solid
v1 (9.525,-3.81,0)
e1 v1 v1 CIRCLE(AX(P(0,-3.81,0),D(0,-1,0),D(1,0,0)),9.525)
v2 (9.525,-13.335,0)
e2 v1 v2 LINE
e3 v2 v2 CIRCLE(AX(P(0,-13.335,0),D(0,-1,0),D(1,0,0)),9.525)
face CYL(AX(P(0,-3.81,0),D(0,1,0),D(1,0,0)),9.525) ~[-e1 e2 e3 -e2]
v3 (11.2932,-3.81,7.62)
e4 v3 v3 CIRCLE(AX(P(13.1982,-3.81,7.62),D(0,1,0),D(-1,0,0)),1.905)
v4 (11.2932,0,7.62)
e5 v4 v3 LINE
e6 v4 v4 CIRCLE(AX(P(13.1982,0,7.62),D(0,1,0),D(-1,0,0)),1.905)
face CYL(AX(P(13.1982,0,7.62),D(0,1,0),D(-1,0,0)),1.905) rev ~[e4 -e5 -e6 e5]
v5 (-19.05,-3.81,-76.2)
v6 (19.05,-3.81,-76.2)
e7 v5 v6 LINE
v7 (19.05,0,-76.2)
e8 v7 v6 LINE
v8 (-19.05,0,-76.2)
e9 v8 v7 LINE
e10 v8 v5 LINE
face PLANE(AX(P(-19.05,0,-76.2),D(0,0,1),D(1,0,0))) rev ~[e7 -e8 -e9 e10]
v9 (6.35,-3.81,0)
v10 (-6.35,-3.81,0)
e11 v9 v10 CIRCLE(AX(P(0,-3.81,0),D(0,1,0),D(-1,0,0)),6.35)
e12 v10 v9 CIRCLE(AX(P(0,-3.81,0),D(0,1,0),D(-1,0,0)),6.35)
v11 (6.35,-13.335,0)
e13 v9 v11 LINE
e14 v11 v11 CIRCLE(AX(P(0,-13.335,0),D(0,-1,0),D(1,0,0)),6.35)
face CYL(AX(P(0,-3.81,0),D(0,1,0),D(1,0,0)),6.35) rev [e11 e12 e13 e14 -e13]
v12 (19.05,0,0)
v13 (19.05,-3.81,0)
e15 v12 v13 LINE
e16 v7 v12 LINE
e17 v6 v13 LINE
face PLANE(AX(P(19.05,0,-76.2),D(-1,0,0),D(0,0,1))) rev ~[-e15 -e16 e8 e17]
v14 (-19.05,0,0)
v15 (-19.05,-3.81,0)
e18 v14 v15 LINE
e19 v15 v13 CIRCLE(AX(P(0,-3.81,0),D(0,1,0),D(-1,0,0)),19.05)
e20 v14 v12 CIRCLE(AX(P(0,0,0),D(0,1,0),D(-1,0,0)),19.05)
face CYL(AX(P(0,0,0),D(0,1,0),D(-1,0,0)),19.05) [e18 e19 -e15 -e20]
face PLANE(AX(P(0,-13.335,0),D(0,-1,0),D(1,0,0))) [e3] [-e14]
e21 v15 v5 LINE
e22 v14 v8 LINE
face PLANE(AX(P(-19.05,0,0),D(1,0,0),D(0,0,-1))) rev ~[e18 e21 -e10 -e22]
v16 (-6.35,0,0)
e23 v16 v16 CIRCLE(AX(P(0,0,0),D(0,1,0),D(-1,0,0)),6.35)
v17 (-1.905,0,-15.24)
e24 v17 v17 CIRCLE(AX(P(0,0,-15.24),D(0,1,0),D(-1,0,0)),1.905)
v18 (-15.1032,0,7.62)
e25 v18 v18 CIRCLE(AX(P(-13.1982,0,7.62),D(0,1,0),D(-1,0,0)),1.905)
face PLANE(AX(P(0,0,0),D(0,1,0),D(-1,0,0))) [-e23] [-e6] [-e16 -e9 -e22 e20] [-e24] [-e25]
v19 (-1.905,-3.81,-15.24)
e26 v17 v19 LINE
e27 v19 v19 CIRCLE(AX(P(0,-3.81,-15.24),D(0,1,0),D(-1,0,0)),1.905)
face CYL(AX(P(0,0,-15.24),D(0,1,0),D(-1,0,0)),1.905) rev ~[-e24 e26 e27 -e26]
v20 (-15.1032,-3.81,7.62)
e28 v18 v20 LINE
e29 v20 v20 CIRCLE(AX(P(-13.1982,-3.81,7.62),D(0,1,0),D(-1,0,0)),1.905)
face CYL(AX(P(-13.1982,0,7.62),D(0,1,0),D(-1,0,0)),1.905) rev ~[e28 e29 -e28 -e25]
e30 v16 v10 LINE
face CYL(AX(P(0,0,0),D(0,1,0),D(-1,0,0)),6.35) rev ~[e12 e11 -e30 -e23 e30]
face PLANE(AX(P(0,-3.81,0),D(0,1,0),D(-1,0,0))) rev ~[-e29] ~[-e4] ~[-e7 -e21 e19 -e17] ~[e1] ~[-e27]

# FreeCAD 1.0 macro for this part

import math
import FreeCAD as App
import Part
import Sketcher

V = App.Vector
Q = App.Units.Quantity

doc = App.newDocument("Part")
params = doc.addObject("Spreadsheet::Sheet", "Params")
for row, (alias, value) in enumerate([
    ("sketch1_diameter", "0.5 in"),
    ("sketch1_diameter2", "0.15 in"),
    ("sketch1_height", "3 in"),
    ("sketch1_radius", "0.75 in"),
    ("pad1_length", "0.15 in"),
    ("sketch2_diameter", "0.75 in"),
    ("sketch2_diameter2", "0.5 in"),
    ("pad2_length", "0.375 in"),
], start=1):
    params.set(f"A{row}", alias)
    params.set(f"B{row}", "=" + value)
    params.setAlias(f"B{row}", alias)

body = doc.addObject("PartDesign::Body", "Body")

sketch1 = body.newObject("Sketcher::SketchObject", "Sketch")
sketch1.AttachmentSupport = (doc.getObject("XZ_Plane"), [""])
sketch1.MapMode = "FlatFace"
sketch1.addGeometry([
    Part.LineSegment(V(-19.1, -76.2, 0), V(-19.1, 0, 0)),
    Part.ArcOfCircle(Part.Circle(V(0, 0, 0), V(0, 0, 1), 19.1), math.radians(0), math.radians(180)),
    Part.LineSegment(V(19.1, 0, 0), V(19.1, -76.2, 0)),
    Part.LineSegment(V(19.1, -76.2, 0), V(-19.1, -76.2, 0)),
    Part.Circle(V(13.2, 7.6, 0), V(0, 0, 1), 1.9),
    Part.Circle(V(0, -15.2, 0), V(0, 0, 1), 1.9),
    Part.Circle(V(0, 0, 0), V(0, 0, 1), 6.3),
    Part.Circle(V(-13.2, 7.6, 0), V(0, 0, 1), 1.9),
], False)
sketch1.addConstraint([
    Sketcher.Constraint("Tangent", 0, 2, 1, 2),
    Sketcher.Constraint("Tangent", 1, 1, 2, 1),
    Sketcher.Constraint("Coincident", 2, 2, 3, 1),
    Sketcher.Constraint("Coincident", 3, 2, 0, 1),
    Sketcher.Constraint("Vertical", 0),
    Sketcher.Constraint("Vertical", 2),
    Sketcher.Constraint("Horizontal", 3),
    Sketcher.Constraint("Coincident", 1, 3, -1, 1),
    Sketcher.Constraint("Coincident", 6, 3, -1, 1),
    Sketcher.Constraint("Equal", 4, 5),
    Sketcher.Constraint("Equal", 5, 7),
    Sketcher.Constraint("Symmetric", 4, 3, 7, 3, -2),
    Sketcher.Constraint("PointOnObject", 5, 3, -2),
    Sketcher.Constraint("Diameter", 6, Q("0.5 in")),
    Sketcher.Constraint("Diameter", 4, Q("0.15 in")),
    Sketcher.Constraint("DistanceY", 0, 1, 0, 2, Q("3 in")),
    Sketcher.Constraint("Radius", 1, Q("0.75 in")),
    Sketcher.Constraint("DistanceY", -1, 1, 4, 3, Q("0.3 in")),
    Sketcher.Constraint("DistanceY", 5, 3, -1, 1, Q("0.6 in")),
    Sketcher.Constraint("DistanceX", -1, 1, 4, 3, Q("13.1982 mm")),
])
sketch1.setExpression("Constraints[13]", "Params.sketch1_diameter")
sketch1.setExpression("Constraints[14]", "Params.sketch1_diameter2")
sketch1.setExpression("Constraints[15]", "Params.sketch1_height")
sketch1.setExpression("Constraints[16]", "Params.sketch1_radius")
pad1 = body.newObject("PartDesign::Pad", "Pad")
pad1.Profile = sketch1
pad1.setExpression("Length", "Params.pad1_length")

sketch2 = body.newObject("Sketcher::SketchObject", "Sketch001")
sketch2.AttachmentSupport = (doc.getObject("XZ_Plane"), [""])
sketch2.MapMode = "FlatFace"
sketch2.AttachmentOffset = App.Placement(V(0, 0, 0.15 * 25.4), App.Rotation())
sketch2.addGeometry([
    Part.Circle(V(0, 0, 0), V(0, 0, 1), 10),
    Part.Circle(V(0, 0, 0), V(0, 0, 1), 6),
], False)
sketch2.addConstraint([
    Sketcher.Constraint("Coincident", 0, 3, -1, 1),
    Sketcher.Constraint("Coincident", 1, 3, -1, 1),
    Sketcher.Constraint("Diameter", 0, Q("0.75 in")),
    Sketcher.Constraint("Diameter", 1, Q("0.5 in")),
])
sketch2.setExpression("Constraints[2]", "Params.sketch2_diameter")
sketch2.setExpression("Constraints[3]", "Params.sketch2_diameter2")
pad2 = body.newObject("PartDesign::Pad", "Pad001")
pad2.Profile = sketch2
pad2.setExpression("Length", "Params.pad2_length")

doc.recompute()
